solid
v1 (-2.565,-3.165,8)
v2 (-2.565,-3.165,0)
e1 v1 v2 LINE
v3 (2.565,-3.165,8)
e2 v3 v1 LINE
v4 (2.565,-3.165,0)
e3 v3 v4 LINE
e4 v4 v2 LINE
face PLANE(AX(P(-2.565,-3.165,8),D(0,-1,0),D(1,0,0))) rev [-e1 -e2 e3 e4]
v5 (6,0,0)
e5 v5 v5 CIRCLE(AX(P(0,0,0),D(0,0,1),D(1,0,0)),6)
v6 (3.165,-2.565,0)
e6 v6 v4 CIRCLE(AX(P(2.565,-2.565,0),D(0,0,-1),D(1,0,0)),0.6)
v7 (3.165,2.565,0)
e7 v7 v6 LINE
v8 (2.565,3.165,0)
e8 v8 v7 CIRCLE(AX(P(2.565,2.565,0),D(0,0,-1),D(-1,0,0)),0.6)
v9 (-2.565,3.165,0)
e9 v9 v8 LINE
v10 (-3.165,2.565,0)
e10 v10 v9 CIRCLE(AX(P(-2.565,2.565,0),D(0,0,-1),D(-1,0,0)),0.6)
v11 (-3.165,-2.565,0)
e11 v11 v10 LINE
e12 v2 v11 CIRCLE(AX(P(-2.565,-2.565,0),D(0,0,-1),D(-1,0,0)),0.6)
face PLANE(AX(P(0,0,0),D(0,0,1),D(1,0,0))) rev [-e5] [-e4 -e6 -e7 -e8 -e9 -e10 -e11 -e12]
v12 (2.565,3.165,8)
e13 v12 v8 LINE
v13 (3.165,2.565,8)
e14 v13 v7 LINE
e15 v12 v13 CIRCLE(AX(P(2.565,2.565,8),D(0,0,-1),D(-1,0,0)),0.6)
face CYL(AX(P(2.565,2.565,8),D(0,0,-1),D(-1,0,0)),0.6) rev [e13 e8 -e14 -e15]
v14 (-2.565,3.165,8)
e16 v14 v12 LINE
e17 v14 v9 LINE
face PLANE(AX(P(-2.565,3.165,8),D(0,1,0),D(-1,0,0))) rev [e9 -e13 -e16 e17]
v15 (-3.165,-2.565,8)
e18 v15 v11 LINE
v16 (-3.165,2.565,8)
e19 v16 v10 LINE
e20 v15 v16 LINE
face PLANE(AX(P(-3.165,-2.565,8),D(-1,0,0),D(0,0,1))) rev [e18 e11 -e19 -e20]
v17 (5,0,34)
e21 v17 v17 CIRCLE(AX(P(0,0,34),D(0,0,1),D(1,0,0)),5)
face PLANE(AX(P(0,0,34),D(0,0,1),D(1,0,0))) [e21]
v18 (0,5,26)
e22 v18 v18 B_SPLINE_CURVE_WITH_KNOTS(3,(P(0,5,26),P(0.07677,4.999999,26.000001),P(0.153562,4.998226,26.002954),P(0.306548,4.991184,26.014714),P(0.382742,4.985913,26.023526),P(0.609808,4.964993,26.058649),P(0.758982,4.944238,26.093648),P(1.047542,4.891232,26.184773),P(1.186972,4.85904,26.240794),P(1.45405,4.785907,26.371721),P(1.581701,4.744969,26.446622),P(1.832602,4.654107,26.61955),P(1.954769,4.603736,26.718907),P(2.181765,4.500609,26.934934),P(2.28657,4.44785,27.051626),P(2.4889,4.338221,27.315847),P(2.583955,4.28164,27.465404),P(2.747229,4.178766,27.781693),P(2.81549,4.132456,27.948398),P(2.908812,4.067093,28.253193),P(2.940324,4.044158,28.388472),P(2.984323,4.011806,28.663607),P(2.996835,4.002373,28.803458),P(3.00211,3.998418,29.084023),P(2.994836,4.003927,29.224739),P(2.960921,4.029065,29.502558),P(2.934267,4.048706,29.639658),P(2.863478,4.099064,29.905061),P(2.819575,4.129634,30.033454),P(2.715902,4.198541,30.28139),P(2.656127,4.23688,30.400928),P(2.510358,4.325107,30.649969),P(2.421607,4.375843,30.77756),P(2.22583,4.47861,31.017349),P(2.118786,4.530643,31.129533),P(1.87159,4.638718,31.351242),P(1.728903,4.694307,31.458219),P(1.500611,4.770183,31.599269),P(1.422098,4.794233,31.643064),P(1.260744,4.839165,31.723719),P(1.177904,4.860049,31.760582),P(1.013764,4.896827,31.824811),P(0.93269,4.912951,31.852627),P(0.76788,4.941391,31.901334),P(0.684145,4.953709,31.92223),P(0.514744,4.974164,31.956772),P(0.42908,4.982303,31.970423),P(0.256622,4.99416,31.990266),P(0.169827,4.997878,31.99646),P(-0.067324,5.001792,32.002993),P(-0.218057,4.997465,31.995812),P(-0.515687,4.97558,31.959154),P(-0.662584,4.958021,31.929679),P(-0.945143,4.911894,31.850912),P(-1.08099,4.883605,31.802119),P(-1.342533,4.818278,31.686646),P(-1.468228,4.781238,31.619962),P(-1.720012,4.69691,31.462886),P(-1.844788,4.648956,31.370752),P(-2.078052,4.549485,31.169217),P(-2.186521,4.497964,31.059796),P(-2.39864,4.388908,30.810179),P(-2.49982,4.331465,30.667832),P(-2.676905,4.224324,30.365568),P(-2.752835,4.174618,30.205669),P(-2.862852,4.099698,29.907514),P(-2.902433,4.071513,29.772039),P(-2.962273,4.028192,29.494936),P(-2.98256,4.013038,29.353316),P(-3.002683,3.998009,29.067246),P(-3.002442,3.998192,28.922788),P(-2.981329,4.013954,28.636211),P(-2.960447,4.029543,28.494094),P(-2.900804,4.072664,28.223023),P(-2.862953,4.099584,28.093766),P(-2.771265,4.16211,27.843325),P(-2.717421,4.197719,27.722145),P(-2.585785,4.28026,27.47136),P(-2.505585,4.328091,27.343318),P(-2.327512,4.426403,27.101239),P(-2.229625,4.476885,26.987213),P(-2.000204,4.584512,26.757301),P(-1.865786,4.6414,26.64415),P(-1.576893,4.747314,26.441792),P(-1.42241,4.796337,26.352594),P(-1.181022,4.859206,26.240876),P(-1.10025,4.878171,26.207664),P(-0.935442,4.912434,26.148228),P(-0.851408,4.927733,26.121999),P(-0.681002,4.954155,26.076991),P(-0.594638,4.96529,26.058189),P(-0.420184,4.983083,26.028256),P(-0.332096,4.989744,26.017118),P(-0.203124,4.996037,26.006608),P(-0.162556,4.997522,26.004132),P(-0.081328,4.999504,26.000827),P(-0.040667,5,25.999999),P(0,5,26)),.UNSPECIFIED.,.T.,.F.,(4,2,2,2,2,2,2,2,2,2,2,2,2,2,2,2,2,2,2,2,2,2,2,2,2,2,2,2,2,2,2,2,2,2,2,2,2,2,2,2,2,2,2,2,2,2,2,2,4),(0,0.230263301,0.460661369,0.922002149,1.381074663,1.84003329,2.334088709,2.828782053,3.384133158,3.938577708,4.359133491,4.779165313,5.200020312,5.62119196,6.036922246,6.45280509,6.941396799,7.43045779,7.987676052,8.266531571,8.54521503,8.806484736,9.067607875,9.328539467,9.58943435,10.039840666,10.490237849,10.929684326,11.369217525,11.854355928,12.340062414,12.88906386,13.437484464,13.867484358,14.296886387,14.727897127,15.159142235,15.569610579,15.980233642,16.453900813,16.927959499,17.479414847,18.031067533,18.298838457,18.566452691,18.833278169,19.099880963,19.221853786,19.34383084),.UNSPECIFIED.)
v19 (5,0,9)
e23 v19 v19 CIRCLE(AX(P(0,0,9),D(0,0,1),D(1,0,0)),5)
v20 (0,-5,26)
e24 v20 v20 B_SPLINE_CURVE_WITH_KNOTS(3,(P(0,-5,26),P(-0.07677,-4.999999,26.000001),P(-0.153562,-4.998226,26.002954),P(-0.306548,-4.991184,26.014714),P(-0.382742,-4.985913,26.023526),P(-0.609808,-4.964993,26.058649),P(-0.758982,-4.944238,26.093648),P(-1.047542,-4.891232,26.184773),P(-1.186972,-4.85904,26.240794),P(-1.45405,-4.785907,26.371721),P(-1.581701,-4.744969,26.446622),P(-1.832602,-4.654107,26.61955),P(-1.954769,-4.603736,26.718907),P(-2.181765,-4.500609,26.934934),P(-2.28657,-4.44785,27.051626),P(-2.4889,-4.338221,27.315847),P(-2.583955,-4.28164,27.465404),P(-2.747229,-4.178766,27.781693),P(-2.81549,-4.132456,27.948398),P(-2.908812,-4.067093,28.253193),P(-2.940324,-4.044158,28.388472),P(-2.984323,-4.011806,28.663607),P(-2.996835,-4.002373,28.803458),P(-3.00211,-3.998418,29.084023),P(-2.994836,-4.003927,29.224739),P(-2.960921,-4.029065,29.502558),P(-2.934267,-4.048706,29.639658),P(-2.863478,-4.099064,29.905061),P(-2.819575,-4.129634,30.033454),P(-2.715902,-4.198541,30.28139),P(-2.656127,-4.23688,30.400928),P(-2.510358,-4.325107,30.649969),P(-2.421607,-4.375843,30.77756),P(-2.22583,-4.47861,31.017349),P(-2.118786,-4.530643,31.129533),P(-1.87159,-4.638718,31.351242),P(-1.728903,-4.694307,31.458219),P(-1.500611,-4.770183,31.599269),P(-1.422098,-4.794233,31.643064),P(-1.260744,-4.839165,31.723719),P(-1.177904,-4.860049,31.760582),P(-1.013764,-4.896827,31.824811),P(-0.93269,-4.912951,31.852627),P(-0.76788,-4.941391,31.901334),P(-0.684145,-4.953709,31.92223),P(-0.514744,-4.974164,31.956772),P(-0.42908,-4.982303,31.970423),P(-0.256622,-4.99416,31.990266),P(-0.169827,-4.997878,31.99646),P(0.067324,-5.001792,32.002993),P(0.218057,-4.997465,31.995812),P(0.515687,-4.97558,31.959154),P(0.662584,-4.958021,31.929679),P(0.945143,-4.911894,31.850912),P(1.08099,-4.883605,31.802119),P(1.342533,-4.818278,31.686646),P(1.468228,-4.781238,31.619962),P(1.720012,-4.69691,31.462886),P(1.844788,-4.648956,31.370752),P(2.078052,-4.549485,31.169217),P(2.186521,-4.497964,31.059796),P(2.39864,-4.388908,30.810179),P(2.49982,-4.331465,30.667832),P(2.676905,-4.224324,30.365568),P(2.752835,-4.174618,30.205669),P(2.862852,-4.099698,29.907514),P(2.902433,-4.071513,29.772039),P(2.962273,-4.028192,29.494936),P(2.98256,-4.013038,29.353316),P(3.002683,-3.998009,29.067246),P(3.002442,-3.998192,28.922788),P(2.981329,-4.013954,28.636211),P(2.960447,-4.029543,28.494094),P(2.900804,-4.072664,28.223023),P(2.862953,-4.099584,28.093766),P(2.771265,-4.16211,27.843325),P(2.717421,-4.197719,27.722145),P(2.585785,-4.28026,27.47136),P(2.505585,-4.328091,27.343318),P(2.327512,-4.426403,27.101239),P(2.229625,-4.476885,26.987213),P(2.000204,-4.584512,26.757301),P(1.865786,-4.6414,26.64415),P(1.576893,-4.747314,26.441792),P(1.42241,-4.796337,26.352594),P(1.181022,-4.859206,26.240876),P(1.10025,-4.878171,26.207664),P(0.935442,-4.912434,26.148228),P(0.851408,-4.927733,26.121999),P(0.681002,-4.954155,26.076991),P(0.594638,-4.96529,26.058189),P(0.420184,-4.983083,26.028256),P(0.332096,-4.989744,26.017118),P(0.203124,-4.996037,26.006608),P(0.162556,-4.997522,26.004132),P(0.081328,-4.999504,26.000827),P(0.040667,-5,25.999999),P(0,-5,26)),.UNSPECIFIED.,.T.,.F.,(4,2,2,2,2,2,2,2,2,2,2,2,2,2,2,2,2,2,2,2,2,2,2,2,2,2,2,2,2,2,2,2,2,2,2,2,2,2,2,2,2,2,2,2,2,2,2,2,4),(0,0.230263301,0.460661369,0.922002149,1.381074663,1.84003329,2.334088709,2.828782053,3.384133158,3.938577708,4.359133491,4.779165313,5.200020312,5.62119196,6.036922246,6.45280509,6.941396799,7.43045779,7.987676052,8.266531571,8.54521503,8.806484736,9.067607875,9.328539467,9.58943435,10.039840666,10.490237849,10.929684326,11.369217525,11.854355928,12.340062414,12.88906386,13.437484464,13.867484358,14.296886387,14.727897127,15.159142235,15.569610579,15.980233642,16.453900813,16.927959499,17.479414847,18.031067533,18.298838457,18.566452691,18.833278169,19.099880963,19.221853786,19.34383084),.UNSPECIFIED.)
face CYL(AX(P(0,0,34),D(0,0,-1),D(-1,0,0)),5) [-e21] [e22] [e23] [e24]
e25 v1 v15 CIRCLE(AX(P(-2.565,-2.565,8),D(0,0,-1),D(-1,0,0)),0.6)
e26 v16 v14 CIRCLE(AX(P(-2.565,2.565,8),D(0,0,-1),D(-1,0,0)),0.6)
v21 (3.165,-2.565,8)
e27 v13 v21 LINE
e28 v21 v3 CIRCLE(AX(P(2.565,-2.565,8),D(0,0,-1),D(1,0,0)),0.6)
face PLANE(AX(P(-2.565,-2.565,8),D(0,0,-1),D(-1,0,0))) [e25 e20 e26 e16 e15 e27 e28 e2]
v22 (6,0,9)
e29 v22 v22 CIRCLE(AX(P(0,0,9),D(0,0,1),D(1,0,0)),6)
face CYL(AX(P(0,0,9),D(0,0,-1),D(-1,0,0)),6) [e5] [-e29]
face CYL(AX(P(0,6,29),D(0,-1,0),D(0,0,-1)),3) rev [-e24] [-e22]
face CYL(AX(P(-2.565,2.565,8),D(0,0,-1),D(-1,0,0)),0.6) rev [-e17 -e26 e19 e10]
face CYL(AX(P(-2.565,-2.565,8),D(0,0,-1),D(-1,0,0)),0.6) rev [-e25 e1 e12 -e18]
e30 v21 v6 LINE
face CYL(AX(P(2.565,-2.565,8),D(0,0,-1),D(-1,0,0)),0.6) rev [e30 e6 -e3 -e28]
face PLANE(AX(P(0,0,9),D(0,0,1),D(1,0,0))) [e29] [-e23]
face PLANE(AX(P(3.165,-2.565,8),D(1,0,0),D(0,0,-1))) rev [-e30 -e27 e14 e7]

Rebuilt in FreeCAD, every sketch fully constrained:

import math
import FreeCAD as App
import Part
import Sketcher
from FreeCAD import Vector

doc = App.newDocument("Part")
body = doc.addObject("PartDesign::Body", "Body")

# Sketch on XY plane
sketch1 = body.newObject("Sketcher::SketchObject", "Sketch")
sketch1.AttachmentSupport = (doc.getObject("XY_Plane"), [""])
sketch1.MapMode = "FlatFace"
sketch1.addGeometry(Part.Circle(Vector(0, 0, 0), Vector(0, 0, 1), 5), False)
sketch1.addConstraint([
    Sketcher.Constraint("Coincident", 0, 3, -1, 1),
    Sketcher.Constraint("Diameter", 0, 10.0),
])
pad1 = body.newObject("PartDesign::Pad", "Pad")
pad1.Profile = sketch1
pad1.Length = 34

# Sketch on XY plane
sketch2 = body.newObject("Sketcher::SketchObject", "Sketch001")
sketch2.AttachmentSupport = (doc.getObject("XY_Plane"), [""])
sketch2.MapMode = "FlatFace"
sketch2.addGeometry(Part.Circle(Vector(0, 0, 0), Vector(0, 0, 1), 6), False)
sketch2.addConstraint([
    Sketcher.Constraint("Coincident", 0, 3, -1, 1),
    Sketcher.Constraint("Diameter", 0, 12.0),
])
pad2 = body.newObject("PartDesign::Pad", "Pad001")
pad2.Profile = sketch2
pad2.Length = 9

# Sketch on XY plane
sketch3 = body.newObject("Sketcher::SketchObject", "Sketch002")
sketch3.AttachmentSupport = (doc.getObject("XY_Plane"), [""])
sketch3.MapMode = "FlatFace"
sketch3.addGeometry([
    Part.LineSegment(Vector(2.6, -3.2, 0), Vector(-2.6, -3.2, 0)),  # 0
    Part.ArcOfCircle(Part.Circle(Vector(-2.6, -2.6, 0), Vector(0, 0, 1), 0.6), math.radians(180), math.radians(270)),  # 1
    Part.LineSegment(Vector(-3.2, -2.6, 0), Vector(-3.2, 2.6, 0)),  # 2
    Part.ArcOfCircle(Part.Circle(Vector(-2.6, 2.6, 0), Vector(0, 0, 1), 0.6), math.radians(90), math.radians(180)),  # 3
    Part.LineSegment(Vector(-2.6, 3.2, 0), Vector(2.6, 3.2, 0)),  # 4
    Part.ArcOfCircle(Part.Circle(Vector(2.6, 2.6, 0), Vector(0, 0, 1), 0.6), math.radians(0), math.radians(90)),  # 5
    Part.LineSegment(Vector(3.2, 2.6, 0), Vector(3.2, -2.6, 0)),  # 6
    Part.ArcOfCircle(Part.Circle(Vector(2.6, -2.6, 0), Vector(0, 0, 1), 0.6), math.radians(-90), math.radians(0)),  # 7
], False)
sketch3.addConstraint([
    Sketcher.Constraint("Tangent", 0, 2, 1, 2),
    Sketcher.Constraint("Tangent", 1, 1, 2, 1),
    Sketcher.Constraint("Tangent", 2, 2, 3, 2),
    Sketcher.Constraint("Tangent", 3, 1, 4, 1),
    Sketcher.Constraint("Tangent", 4, 2, 5, 2),
    Sketcher.Constraint("Tangent", 5, 1, 6, 1),
    Sketcher.Constraint("Tangent", 6, 2, 7, 2),
    Sketcher.Constraint("Tangent", 7, 1, 0, 1),
    Sketcher.Constraint("Horizontal", 0),
    Sketcher.Constraint("Vertical", 2),
    Sketcher.Constraint("Horizontal", 4),
    Sketcher.Constraint("Vertical", 6),
    Sketcher.Constraint("Equal", 1, 3),
    Sketcher.Constraint("Equal", 3, 5),
    Sketcher.Constraint("Equal", 5, 7),
    Sketcher.Constraint("Symmetric", 1, 3, 5, 3, -1, 1),
    Sketcher.Constraint("Equal", 4, 2),
    Sketcher.Constraint("Radius", 1, 0.6),
    Sketcher.Constraint("DistanceX", 0, 2, 0, 1, 5.13),
])
pocket1 = body.newObject("PartDesign::Pocket", "Pocket")
pocket1.Profile = sketch3
pocket1.Length = 8
pocket1.Reversed = True

# Sketch on XZ plane
sketch4 = body.newObject("Sketcher::SketchObject", "Sketch003")
sketch4.AttachmentSupport = (doc.getObject("XZ_Plane"), [""])
sketch4.MapMode = "FlatFace"
sketch4.AttachmentOffset = App.Placement(Vector(0, 0, 5), App.Rotation())
sketch4.addGeometry(Part.Circle(Vector(0, 29, 0), Vector(0, 0, 1), 3), False)
sketch4.addConstraint([
    Sketcher.Constraint("PointOnObject", 0, 3, -2),
    Sketcher.Constraint("Diameter", 0, 6.0),
    Sketcher.Constraint("DistanceY", -1, 1, 0, 3, 29.0),
])
pocket2 = body.newObject("PartDesign::Pocket", "Pocket001")
pocket2.Profile = sketch4
pocket2.Type = "ThroughAll"

doc.recompute()
